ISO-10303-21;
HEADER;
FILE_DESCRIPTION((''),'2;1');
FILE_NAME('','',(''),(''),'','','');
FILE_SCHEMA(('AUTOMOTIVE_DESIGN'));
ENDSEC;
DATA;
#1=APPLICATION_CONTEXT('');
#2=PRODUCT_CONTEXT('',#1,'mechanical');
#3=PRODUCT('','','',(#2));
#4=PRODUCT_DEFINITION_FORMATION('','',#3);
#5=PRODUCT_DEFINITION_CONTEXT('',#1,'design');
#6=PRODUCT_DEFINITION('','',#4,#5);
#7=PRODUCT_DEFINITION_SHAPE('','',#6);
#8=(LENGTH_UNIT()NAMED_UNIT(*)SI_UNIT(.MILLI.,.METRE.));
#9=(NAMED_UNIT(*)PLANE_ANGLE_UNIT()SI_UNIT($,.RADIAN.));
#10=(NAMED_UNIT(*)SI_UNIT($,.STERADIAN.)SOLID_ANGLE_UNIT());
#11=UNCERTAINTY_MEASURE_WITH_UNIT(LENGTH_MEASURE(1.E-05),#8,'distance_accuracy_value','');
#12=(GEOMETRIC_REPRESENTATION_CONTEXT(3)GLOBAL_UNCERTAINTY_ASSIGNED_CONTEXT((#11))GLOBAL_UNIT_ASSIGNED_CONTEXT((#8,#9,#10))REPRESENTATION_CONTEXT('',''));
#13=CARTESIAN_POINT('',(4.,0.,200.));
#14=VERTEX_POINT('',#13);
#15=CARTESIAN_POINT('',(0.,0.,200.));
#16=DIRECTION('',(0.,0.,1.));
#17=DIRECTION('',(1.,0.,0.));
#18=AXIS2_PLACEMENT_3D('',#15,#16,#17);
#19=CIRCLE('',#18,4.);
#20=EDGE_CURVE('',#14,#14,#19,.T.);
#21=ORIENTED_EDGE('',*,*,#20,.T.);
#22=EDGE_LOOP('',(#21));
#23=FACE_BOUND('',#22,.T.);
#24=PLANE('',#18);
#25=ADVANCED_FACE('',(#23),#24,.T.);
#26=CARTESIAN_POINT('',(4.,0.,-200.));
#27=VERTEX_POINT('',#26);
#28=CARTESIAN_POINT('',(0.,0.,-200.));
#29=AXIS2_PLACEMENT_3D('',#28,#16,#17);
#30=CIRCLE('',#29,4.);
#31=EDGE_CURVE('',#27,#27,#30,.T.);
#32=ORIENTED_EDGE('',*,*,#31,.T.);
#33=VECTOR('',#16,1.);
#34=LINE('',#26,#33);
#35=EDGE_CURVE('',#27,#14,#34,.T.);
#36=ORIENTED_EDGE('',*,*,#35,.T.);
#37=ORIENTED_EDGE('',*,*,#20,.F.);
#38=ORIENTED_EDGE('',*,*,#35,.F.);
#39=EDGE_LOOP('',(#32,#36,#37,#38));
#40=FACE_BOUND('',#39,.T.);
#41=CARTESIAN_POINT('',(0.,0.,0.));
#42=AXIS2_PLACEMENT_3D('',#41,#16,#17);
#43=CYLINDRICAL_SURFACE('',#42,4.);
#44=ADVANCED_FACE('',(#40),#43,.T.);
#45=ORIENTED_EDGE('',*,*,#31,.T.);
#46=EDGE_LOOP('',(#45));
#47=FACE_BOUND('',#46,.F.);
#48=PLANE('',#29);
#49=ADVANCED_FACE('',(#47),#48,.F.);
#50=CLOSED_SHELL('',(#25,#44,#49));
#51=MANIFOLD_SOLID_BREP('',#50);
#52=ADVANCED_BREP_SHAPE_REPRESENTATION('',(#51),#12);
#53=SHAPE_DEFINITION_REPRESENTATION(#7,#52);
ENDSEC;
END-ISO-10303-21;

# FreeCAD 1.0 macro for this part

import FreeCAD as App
import Part
import Sketcher

doc = App.newDocument("Part")
params = doc.addObject("Spreadsheet::Sheet", "Params")
for row, (alias, value) in enumerate([
    ("sketch1_diameter", "8 mm"),
    ("pad1_length", "400 mm"),
], start=1):
    params.set(f"A{row}", alias)
    params.set(f"B{row}", "=" + value)
    params.setAlias(f"B{row}", alias)

body = doc.addObject("PartDesign::Body", "Body")

sketch1 = doc.addObject("Sketcher::SketchObject", "Sketch")
body.addObject(sketch1)
sketch1.AttachmentSupport = (doc.XY_Plane, [""])
sketch1.MapMode = "FlatFace"
sketch1.addGeometry(Part.Circle(App.Vector(0, 0, 0), App.Vector(0, 0, 1), 4), False)
sketch1.addConstraint([
    Sketcher.Constraint("Coincident", 0, 3, -1, 1),
    Sketcher.Constraint("Diameter", 0, 8.0),
])
sketch1.setExpression("Constraints[1]", "Params.sketch1_diameter")
pad1 = doc.addObject("PartDesign::Pad", "Pad")
body.addObject(pad1)
pad1.Profile = sketch1
pad1.setExpression("Length", "Params.pad1_length")
pad1.Midplane = True

doc.recompute()
